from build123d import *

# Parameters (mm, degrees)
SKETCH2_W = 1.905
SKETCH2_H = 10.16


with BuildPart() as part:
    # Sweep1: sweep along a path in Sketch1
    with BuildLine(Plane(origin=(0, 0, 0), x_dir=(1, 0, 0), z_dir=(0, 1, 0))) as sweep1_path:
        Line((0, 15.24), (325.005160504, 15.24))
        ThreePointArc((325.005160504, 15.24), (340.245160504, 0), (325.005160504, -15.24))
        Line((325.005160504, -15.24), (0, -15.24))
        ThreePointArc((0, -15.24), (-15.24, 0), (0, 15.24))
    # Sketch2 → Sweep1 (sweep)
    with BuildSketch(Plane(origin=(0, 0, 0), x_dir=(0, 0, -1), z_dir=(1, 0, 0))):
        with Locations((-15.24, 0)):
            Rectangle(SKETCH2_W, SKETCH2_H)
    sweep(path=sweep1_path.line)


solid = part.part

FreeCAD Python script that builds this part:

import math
import FreeCAD as App
import Part
import Sketcher

V = App.Vector
Q = App.Units.Quantity

doc = App.newDocument("Part")
body = doc.addObject("PartDesign::Body", "Body")

# Sketch on YZ plane
sketch1 = body.newObject("Sketcher::SketchObject", "Sketch")
sketch1.AttachmentSupport = (doc.getObject("YZ_Plane"), [""])
sketch1.MapMode = "FlatFace"
sketch1.addGeometry(Part.LineSegment(V(5.08, 16.1925, 0), V(-5.08, 16.1925, 0)), False)
sketch1.addGeometry(Part.LineSegment(V(-5.08, 16.1925, 0), V(-5.08, 14.2875, 0)), False)
sketch1.addGeometry(Part.LineSegment(V(-5.08, 14.2875, 0), V(5.08, 14.2875, 0)), False)
sketch1.addGeometry(Part.LineSegment(V(5.08, 14.2875, 0), V(5.08, 16.1925, 0)), False)
sketch1.addConstraint(Sketcher.Constraint("Coincident", 0, 2, 1, 1))
sketch1.addConstraint(Sketcher.Constraint("Coincident", 1, 2, 2, 1))
sketch1.addConstraint(Sketcher.Constraint("Coincident", 2, 2, 3, 1))
sketch1.addConstraint(Sketcher.Constraint("Coincident", 3, 2, 0, 1))
sketch1.addConstraint(Sketcher.Constraint("Horizontal", 0))
sketch1.addConstraint(Sketcher.Constraint("Vertical", 1))
sketch1.addConstraint(Sketcher.Constraint("Horizontal", 2))
sketch1.addConstraint(Sketcher.Constraint("Vertical", 3))
sketch1.addConstraint(Sketcher.Constraint("DistanceX", 0, 2, 0, 1, Q("0.4 in")))
sketch1.addConstraint(Sketcher.Constraint("DistanceX", 0, 2, -1, 1, Q("0.2 in")))
sketch1.addConstraint(Sketcher.Constraint("DistanceY", 1, 2, 1, 1, Q("0.075 in")))
sketch1.addConstraint(Sketcher.Constraint("DistanceY", -1, 1, 1, 2, Q("0.5625 in")))

# Sketch on XZ plane
sketch2 = body.newObject("Sketcher::SketchObject", "Sketch001")
sketch2.AttachmentSupport = (doc.getObject("XZ_Plane"), [""])
sketch2.MapMode = "FlatFace"
sketch2.addGeometry(Part.LineSegment(V(0, -15.24, 0), V(325.005161, -15.24, 0)), False)
sketch2.addGeometry(Part.ArcOfCircle(Part.Circle(V(325.005161, 0, 0), V(0, 0, 1), 15.24), math.radians(-90), math.radians(90)), False)
sketch2.addGeometry(Part.LineSegment(V(325.005161, 15.24, 0), V(0, 15.24, 0)), False)
sketch2.addGeometry(Part.ArcOfCircle(Part.Circle(V(0, 0, 0), V(0, 0, 1), 15.24), math.radians(90), math.radians(270)), False)
sketch2.addConstraint(Sketcher.Constraint("Tangent", 0, 2, 1, 1))
sketch2.addConstraint(Sketcher.Constraint("Tangent", 1, 2, 2, 1))
sketch2.addConstraint(Sketcher.Constraint("Tangent", 2, 2, 3, 1))
sketch2.addConstraint(Sketcher.Constraint("Tangent", 3, 2, 0, 1))
sketch2.addConstraint(Sketcher.Constraint("Horizontal", 0))
sketch2.addConstraint(Sketcher.Constraint("Horizontal", 2))
sketch2.addConstraint(Sketcher.Constraint("Coincident", 3, 3, -1, 1))
sketch2.addConstraint(Sketcher.Constraint("Radius", 1, Q("0.6 in")))
sketch2.addConstraint(Sketcher.Constraint("DistanceX", 0, 1, 0, 2, 325.005161))
doc.recompute()

additivepipe = body.newObject("PartDesign::AdditivePipe", "AdditivePipe")
additivepipe.Profile = sketch1
additivepipe.Spine = (sketch2, ["Edge1", "Edge2", "Edge3", "Edge4"])

doc.recompute()
